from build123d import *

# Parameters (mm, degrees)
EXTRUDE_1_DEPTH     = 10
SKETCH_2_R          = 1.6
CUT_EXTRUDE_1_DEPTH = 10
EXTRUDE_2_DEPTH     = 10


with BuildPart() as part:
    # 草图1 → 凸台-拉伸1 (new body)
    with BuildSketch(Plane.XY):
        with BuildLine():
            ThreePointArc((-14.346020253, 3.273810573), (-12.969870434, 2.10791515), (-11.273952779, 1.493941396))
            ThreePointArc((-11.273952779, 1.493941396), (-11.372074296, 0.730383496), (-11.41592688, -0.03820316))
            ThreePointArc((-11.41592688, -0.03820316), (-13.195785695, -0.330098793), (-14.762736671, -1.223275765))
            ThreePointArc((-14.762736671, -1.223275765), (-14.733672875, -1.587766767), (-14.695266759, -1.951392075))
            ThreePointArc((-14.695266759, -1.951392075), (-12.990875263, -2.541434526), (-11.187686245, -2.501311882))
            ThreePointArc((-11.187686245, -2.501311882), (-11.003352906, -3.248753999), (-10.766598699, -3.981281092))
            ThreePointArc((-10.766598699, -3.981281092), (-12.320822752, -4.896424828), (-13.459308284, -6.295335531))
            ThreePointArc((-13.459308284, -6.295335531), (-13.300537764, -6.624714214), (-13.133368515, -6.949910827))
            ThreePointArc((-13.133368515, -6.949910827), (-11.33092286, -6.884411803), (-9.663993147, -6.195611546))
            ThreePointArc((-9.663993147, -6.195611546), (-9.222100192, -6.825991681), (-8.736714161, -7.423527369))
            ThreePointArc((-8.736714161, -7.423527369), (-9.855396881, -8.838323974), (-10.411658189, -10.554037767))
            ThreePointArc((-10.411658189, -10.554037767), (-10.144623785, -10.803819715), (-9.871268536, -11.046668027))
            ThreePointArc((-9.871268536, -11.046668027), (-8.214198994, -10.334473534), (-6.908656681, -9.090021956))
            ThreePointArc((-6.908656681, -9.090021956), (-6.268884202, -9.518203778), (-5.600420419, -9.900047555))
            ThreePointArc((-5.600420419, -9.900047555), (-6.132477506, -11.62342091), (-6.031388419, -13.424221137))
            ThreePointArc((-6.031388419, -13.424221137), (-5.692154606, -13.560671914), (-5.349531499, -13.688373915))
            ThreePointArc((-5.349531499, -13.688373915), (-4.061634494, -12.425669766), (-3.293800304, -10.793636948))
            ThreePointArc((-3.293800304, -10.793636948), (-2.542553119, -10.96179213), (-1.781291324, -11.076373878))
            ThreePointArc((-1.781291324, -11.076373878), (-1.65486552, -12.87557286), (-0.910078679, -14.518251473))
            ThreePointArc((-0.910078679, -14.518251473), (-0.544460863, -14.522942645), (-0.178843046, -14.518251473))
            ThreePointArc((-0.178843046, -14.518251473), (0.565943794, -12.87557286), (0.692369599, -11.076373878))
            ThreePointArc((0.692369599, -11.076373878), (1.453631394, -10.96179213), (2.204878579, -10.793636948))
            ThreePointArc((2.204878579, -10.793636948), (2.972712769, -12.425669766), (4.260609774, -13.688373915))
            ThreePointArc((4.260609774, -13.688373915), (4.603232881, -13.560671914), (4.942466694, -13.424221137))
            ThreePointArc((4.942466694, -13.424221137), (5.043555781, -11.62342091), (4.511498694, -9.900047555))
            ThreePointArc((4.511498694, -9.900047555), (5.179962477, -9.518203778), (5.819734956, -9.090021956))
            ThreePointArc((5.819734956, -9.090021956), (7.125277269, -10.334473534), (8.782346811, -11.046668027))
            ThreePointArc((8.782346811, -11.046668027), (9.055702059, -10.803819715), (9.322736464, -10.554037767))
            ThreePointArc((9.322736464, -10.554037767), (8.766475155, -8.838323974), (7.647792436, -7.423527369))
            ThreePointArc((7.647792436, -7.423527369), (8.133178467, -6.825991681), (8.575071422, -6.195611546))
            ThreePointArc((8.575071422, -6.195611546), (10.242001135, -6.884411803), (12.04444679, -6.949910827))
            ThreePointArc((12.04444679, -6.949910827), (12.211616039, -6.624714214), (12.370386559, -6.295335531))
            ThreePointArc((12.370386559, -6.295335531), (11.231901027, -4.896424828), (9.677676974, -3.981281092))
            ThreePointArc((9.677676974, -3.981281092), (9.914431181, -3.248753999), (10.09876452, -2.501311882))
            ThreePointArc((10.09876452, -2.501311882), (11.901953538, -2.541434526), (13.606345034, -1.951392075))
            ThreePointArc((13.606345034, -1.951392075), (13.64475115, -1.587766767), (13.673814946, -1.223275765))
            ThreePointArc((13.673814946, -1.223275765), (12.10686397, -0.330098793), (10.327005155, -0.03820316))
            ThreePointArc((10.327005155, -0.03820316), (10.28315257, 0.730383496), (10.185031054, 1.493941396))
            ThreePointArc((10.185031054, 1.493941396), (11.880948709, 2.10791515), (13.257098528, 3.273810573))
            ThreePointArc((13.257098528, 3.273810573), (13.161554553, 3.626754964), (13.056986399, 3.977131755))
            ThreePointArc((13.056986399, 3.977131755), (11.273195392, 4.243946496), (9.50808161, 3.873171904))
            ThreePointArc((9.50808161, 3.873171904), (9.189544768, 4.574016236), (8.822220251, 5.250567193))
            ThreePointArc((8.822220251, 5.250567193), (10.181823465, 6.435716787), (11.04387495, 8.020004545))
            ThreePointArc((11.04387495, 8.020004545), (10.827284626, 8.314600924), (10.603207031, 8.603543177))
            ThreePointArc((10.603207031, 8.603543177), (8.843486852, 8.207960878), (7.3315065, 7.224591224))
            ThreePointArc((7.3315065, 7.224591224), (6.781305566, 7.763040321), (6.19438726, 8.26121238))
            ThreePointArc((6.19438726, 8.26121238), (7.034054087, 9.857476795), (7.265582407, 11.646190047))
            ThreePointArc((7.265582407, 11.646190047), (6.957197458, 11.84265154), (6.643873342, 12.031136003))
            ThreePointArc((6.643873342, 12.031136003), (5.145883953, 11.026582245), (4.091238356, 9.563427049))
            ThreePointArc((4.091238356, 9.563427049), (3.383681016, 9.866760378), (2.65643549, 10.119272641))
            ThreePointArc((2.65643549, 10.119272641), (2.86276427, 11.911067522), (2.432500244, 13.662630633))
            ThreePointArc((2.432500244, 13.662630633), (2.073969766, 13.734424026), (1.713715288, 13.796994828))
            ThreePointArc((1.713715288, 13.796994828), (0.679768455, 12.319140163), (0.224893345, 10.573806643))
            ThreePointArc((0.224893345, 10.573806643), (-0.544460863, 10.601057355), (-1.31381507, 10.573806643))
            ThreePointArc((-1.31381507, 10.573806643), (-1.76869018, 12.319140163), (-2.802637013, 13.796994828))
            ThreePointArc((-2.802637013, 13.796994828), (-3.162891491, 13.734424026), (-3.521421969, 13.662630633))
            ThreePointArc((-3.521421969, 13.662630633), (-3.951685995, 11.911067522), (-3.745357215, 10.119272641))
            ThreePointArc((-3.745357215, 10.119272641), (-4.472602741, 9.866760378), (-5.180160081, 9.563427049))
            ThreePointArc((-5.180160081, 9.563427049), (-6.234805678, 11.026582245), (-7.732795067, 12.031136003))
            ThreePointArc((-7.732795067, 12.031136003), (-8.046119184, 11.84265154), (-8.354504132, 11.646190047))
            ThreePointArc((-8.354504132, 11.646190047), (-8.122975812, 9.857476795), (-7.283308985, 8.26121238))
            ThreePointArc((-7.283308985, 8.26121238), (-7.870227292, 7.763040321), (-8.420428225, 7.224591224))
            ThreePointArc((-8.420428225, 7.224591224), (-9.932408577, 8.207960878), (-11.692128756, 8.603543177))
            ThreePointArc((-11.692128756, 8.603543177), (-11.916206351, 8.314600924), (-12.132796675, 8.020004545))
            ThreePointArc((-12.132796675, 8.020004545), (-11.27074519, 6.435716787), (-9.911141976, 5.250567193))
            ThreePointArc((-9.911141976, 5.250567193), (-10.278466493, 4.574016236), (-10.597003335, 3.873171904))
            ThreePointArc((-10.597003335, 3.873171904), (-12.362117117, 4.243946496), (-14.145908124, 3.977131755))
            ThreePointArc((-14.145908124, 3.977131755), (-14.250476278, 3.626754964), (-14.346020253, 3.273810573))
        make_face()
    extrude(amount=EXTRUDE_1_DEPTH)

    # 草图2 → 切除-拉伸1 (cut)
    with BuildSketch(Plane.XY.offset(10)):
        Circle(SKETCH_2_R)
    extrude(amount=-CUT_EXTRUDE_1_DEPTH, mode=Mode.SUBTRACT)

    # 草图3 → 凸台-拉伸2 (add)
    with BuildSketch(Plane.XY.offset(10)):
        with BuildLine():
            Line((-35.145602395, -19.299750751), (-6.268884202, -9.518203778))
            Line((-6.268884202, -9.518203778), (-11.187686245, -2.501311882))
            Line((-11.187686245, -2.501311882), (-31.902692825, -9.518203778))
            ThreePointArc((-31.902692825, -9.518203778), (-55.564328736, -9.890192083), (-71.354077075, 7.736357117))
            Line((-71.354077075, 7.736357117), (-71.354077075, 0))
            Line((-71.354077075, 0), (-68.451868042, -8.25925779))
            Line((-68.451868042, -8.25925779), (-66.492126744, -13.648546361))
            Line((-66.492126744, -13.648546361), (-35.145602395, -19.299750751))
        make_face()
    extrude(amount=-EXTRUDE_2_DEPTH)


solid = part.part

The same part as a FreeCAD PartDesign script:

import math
import FreeCAD as App
import Part
import Sketcher
from FreeCAD import Vector

doc = App.newDocument("Part")
body = doc.addObject("PartDesign::Body", "Body")

sketch1 = body.newObject("Sketcher::SketchObject", "Sketch")
sketch1.AttachmentSupport = (doc.getObject("XY_Plane"), [""])
sketch1.MapMode = "FlatFace"
sketch1.addGeometry([
    Part.ArcOfCircle(Part.Circle(Vector(-10.4, 6.5, 0), Vector(0, 0, 1), 5.1), math.radians(-140), math.radians(-100)),
    Part.ArcOfCircle(Part.Circle(Vector(-0.5, -0.3, 0), Vector(0, 0, 1), 10.9), math.radians(170.65), math.radians(178.76)),
    Part.ArcOfCircle(Part.Circle(Vector(-11.5, -5.1, 0), Vector(0, 0, 1), 5.1), math.radians(89), math.radians(130)),
    Part.ArcOfCircle(Part.Circle(Vector(-0.5, -0.3, 0), Vector(0, 0, 1), 14.3), math.radians(-176.18), math.radians(-173.24)),
    Part.ArcOfCircle(Part.Circle(Vector(-12.2, 2.5, 0), Vector(0, 0, 1), 5.1), math.radians(-119), math.radians(-79)),
    Part.ArcOfCircle(Part.Circle(Vector(-0.5, -0.3, 0), Vector(0, 0, 1), 10.9), math.radians(-168.17), math.radians(-160.06)),
    Part.ArcOfCircle(Part.Circle(Vector(-9, -8.8, 0), Vector(0, 0, 1), 5.1), math.radians(110), math.radians(151)),
    Part.ArcOfCircle(Part.Circle(Vector(-0.5, -0.3, 0), Vector(0, 0, 1), 14.3), math.radians(-155), math.radians(-152.06)),
    Part.ArcOfCircle(Part.Circle(Vector(-12.4, -1.9, 0), Vector(0, 0, 1), 5.1), math.radians(-98), math.radians(-57)),
    Part.ArcOfCircle(Part.Circle(Vector(-0.5, -0.3, 0), Vector(0, 0, 1), 10.9), math.radians(-147), math.radians(-138.88)),
    Part.ArcOfCircle(Part.Circle(Vector(-5.4, -11.2, 0), Vector(0, 0, 1), 5.1), math.radians(131), math.radians(172)),
    Part.ArcOfCircle(Part.Circle(Vector(-0.5, -0.3, 0), Vector(0, 0, 1), 14.2), math.radians(-133.82), math.radians(-130.88)),
    Part.ArcOfCircle(Part.Circle(Vector(-11, -6.1, 0), Vector(0, 0, 1), 5.1), math.radians(-77), math.radians(-36)),
    Part.ArcOfCircle(Part.Circle(Vector(-0.5, -0.3, 0), Vector(0, 0, 1), 10.9), math.radians(-125.82), math.radians(-117.71)),
    Part.ArcOfCircle(Part.Circle(Vector(-1.1, -12.2, 0), Vector(0, 0, 1), 5.1), math.radians(153), math.radians(193)),
    Part.ArcOfCircle(Part.Circle(Vector(-0.5, -0.3, 0), Vector(0, 0, 1), 14.2), math.radians(-112.65), math.radians(-109.71)),
    Part.ArcOfCircle(Part.Circle(Vector(-8.2, -9.5, 0), Vector(0, 0, 1), 5.1), math.radians(-56), math.radians(-15)),
    Part.ArcOfCircle(Part.Circle(Vector(-0.5, -0.3, 0), Vector(0, 0, 1), 10.9), math.radians(-104.65), math.radians(-96.53)),
    Part.ArcOfCircle(Part.Circle(Vector(3.3, -11.6, 0), Vector(0, 0, 1), 5.1), math.radians(174), math.radians(215)),
    Part.ArcOfCircle(Part.Circle(Vector(-0.5, -0.3, 0), Vector(0, 0, 1), 14.2), math.radians(-91.47), math.radians(-88.53)),
    Part.ArcOfCircle(Part.Circle(Vector(-4.4, -11.6, 0), Vector(0, 0, 1), 5.1), math.radians(-35), math.radians(6)),
    Part.ArcOfCircle(Part.Circle(Vector(-0.5, -0.3, 0), Vector(0, 0, 1), 10.9), math.radians(-83.47), math.radians(-75.35)),
    Part.ArcOfCircle(Part.Circle(Vector(7.1, -9.5, 0), Vector(0, 0, 1), 5.1), math.radians(-165), math.radians(-124)),
    Part.ArcOfCircle(Part.Circle(Vector(-0.5, -0.3, 0), Vector(0, 0, 1), 14.2), math.radians(-70.29), math.radians(-67.35)),
    Part.ArcOfCircle(Part.Circle(Vector(0, -12.2, 0), Vector(0, 0, 1), 5.1), math.radians(-13), math.radians(27)),
    Part.ArcOfCircle(Part.Circle(Vector(-0.5, -0.3, 0), Vector(0, 0, 1), 10.9), math.radians(-62.29), math.radians(-54.18)),
    Part.ArcOfCircle(Part.Circle(Vector(9.9, -6.1, 0), Vector(0, 0, 1), 5.1), math.radians(-144), math.radians(-103)),
    Part.ArcOfCircle(Part.Circle(Vector(-0.5, -0.3, 0), Vector(0, 0, 1), 14.3), math.radians(-49.12), math.radians(-46.18)),
    Part.ArcOfCircle(Part.Circle(Vector(4.3, -11.2, 0), Vector(0, 0, 1), 5.1), math.radians(8), math.radians(49)),
    Part.ArcOfCircle(Part.Circle(Vector(-0.5, -0.3, 0), Vector(0, 0, 1), 10.9), math.radians(-41.12), math.radians(-33)),
    Part.ArcOfCircle(Part.Circle(Vector(11.3, -1.9, 0), Vector(0, 0, 1), 5.1), math.radians(-123), math.radians(-82)),
    Part.ArcOfCircle(Part.Circle(Vector(-0.5, -0.3, 0), Vector(0, 0, 1), 14.3), math.radians(-27.94), math.radians(-25)),
    Part.ArcOfCircle(Part.Circle(Vector(7.9, -8.8, 0), Vector(0, 0, 1), 5.1), math.radians(29), math.radians(70)),
    Part.ArcOfCircle(Part.Circle(Vector(-0.5, -0.3, 0), Vector(0, 0, 1), 10.9), math.radians(-19.94), math.radians(-11.83)),
    Part.ArcOfCircle(Part.Circle(Vector(11.1, 2.5, 0), Vector(0, 0, 1), 5.1), math.radians(-101), math.radians(-61)),
    Part.ArcOfCircle(Part.Circle(Vector(-0.5, -0.3, 0), Vector(0, 0, 1), 14.3), math.radians(-6.76), math.radians(-3.82)),
    Part.ArcOfCircle(Part.Circle(Vector(10.4, -5.1, 0), Vector(0, 0, 1), 5.1), math.radians(50), math.radians(91)),
    Part.ArcOfCircle(Part.Circle(Vector(-0.5, -0.3, 0), Vector(0, 0, 1), 10.9), math.radians(1.24), math.radians(9.35)),
    Part.ArcOfCircle(Part.Circle(Vector(9.3, 6.5, 0), Vector(0, 0, 1), 5.1), math.radians(-80), math.radians(-40)),
    Part.ArcOfCircle(Part.Circle(Vector(-0.5, -0.3, 0), Vector(0, 0, 1), 14.2), math.radians(14.41), math.radians(17.35)),
    Part.ArcOfCircle(Part.Circle(Vector(11.4, -0.9, 0), Vector(0, 0, 1), 5.1), math.radians(71), math.radians(112)),
    Part.ArcOfCircle(Part.Circle(Vector(-0.5, -0.3, 0), Vector(0, 0, 1), 10.9), math.radians(22.41), math.radians(30.53)),
    Part.ArcOfCircle(Part.Circle(Vector(6.2, 9.6, 0), Vector(0, 0, 1), 5.1), math.radians(-59), math.radians(-18)),
    Part.ArcOfCircle(Part.Circle(Vector(-0.5, -0.3, 0), Vector(0, 0, 1), 14.3), math.radians(35.59), math.radians(38.53)),
    Part.ArcOfCircle(Part.Circle(Vector(10.8, 3.5, 0), Vector(0, 0, 1), 5.1), math.radians(92), math.radians(133)),
    Part.ArcOfCircle(Part.Circle(Vector(-0.5, -0.3, 0), Vector(0, 0, 1), 10.9), math.radians(43.59), math.radians(51.7)),
    Part.ArcOfCircle(Part.Circle(Vector(2.2, 11.4, 0), Vector(0, 0, 1), 5.1), math.radians(-38), math.radians(3)),
    Part.ArcOfCircle(Part.Circle(Vector(-0.5, -0.3, 0), Vector(0, 0, 1), 14.2), math.radians(56.77), math.radians(59.71)),
    Part.ArcOfCircle(Part.Circle(Vector(8.7, 7.4, 0), Vector(0, 0, 1), 5.1), math.radians(114), math.radians(154)),
    Part.ArcOfCircle(Part.Circle(Vector(-0.5, -0.3, 0), Vector(0, 0, 1), 10.9), math.radians(64.77), math.radians(72.88)),
    Part.ArcOfCircle(Part.Circle(Vector(-2.2, 11.6, 0), Vector(0, 0, 1), 5.1), math.radians(-17), math.radians(24)),
    Part.ArcOfCircle(Part.Circle(Vector(-0.5, -0.3, 0), Vector(0, 0, 1), 14.3), math.radians(77.94), math.radians(80.88)),
    Part.ArcOfCircle(Part.Circle(Vector(5.3, 10.2, 0), Vector(0, 0, 1), 5.1), math.radians(135), math.radians(176)),
    Part.ArcOfCircle(Part.Circle(Vector(-0.5, -0.3, 0), Vector(0, 0, 1), 10.9), math.radians(85.94), math.radians(94.06)),
    Part.ArcOfCircle(Part.Circle(Vector(-6.4, 10.2, 0), Vector(0, 0, 1), 5.1), math.radians(4), math.radians(45)),
    Part.ArcOfCircle(Part.Circle(Vector(-0.5, -0.3, 0), Vector(0, 0, 1), 14.3), math.radians(99.12), math.radians(102.06)),
    Part.ArcOfCircle(Part.Circle(Vector(1.1, 11.6, 0), Vector(0, 0, 1), 5.1), math.radians(156), math.radians(197)),
    Part.ArcOfCircle(Part.Circle(Vector(-0.5, -0.3, 0), Vector(0, 0, 1), 10.9), math.radians(107.12), math.radians(115.23)),
    Part.ArcOfCircle(Part.Circle(Vector(-9.8, 7.4, 0), Vector(0, 0, 1), 5.1), math.radians(26), math.radians(66)),
    Part.ArcOfCircle(Part.Circle(Vector(-0.5, -0.3, 0), Vector(0, 0, 1), 14.2), math.radians(120.29), math.radians(123.23)),
    Part.ArcOfCircle(Part.Circle(Vector(-3.3, 11.4, 0), Vector(0, 0, 1), 5.1), math.radians(177), math.radians(218)),
    Part.ArcOfCircle(Part.Circle(Vector(-0.5, -0.3, 0), Vector(0, 0, 1), 10.9), math.radians(128.3), math.radians(136.41)),
    Part.ArcOfCircle(Part.Circle(Vector(-11.9, 3.5, 0), Vector(0, 0, 1), 5.1), math.radians(47), math.radians(88)),
    Part.ArcOfCircle(Part.Circle(Vector(-0.5, -0.3, 0), Vector(0, 0, 1), 14.3), math.radians(141.47), math.radians(144.41)),
    Part.ArcOfCircle(Part.Circle(Vector(-7.3, 9.6, 0), Vector(0, 0, 1), 5.1), math.radians(-162), math.radians(-121)),
    Part.ArcOfCircle(Part.Circle(Vector(-0.5, -0.3, 0), Vector(0, 0, 1), 10.9), math.radians(149.47), math.radians(157.59)),
    Part.ArcOfCircle(Part.Circle(Vector(-12.5, -0.9, 0), Vector(0, 0, 1), 5.1), math.radians(68), math.radians(109)),
    Part.ArcOfCircle(Part.Circle(Vector(-0.5, -0.3, 0), Vector(0, 0, 1), 14.2), math.radians(162.65), math.radians(165.59)),
], False)
sketch1.addConstraint([
    Sketcher.Constraint("Coincident", 0, 2, 1, 1),
    Sketcher.Constraint("Coincident", 1, 2, 2, 1),
    Sketcher.Constraint("Coincident", 2, 2, 3, 1),
    Sketcher.Constraint("Coincident", 3, 2, 4, 1),
    Sketcher.Constraint("Coincident", 4, 2, 5, 1),
    Sketcher.Constraint("Coincident", 5, 2, 6, 1),
    Sketcher.Constraint("Coincident", 6, 2, 7, 1),
    Sketcher.Constraint("Coincident", 7, 2, 8, 1),
    Sketcher.Constraint("Coincident", 8, 2, 9, 1),
    Sketcher.Constraint("Coincident", 9, 2, 10, 1),
    Sketcher.Constraint("Coincident", 10, 2, 11, 1),
    Sketcher.Constraint("Coincident", 11, 2, 12, 1),
    Sketcher.Constraint("Coincident", 12, 2, 13, 1),
    Sketcher.Constraint("Coincident", 13, 2, 14, 1),
    Sketcher.Constraint("Coincident", 14, 2, 15, 1),
    Sketcher.Constraint("Coincident", 15, 2, 16, 1),
    Sketcher.Constraint("Coincident", 16, 2, 17, 1),
    Sketcher.Constraint("Coincident", 17, 2, 18, 1),
    Sketcher.Constraint("Coincident", 18, 2, 19, 1),
    Sketcher.Constraint("Coincident", 19, 2, 20, 1),
    Sketcher.Constraint("Coincident", 20, 2, 21, 1),
    Sketcher.Constraint("Coincident", 21, 2, 22, 1),
    Sketcher.Constraint("Coincident", 22, 2, 23, 1),
    Sketcher.Constraint("Coincident", 23, 2, 24, 1),
    Sketcher.Constraint("Coincident", 24, 2, 25, 1),
    Sketcher.Constraint("Coincident", 25, 2, 26, 1),
    Sketcher.Constraint("Coincident", 26, 2, 27, 1),
    Sketcher.Constraint("Coincident", 27, 2, 28, 1),
    Sketcher.Constraint("Coincident", 28, 2, 29, 1),
    Sketcher.Constraint("Coincident", 29, 2, 30, 1),
    Sketcher.Constraint("Coincident", 30, 2, 31, 1),
    Sketcher.Constraint("Coincident", 31, 2, 32, 1),
    Sketcher.Constraint("Coincident", 32, 2, 33, 1),
    Sketcher.Constraint("Coincident", 33, 2, 34, 1),
    Sketcher.Constraint("Coincident", 34, 2, 35, 1),
    Sketcher.Constraint("Coincident", 35, 2, 36, 1),
    Sketcher.Constraint("Coincident", 36, 2, 37, 1),
    Sketcher.Constraint("Coincident", 37, 2, 38, 1),
    Sketcher.Constraint("Coincident", 38, 2, 39, 1),
    Sketcher.Constraint("Coincident", 39, 2, 40, 1),
    Sketcher.Constraint("Coincident", 40, 2, 41, 1),
    Sketcher.Constraint("Coincident", 41, 2, 42, 1),
    Sketcher.Constraint("Coincident", 42, 2, 43, 1),
    Sketcher.Constraint("Coincident", 43, 2, 44, 1),
    Sketcher.Constraint("Coincident", 44, 2, 45, 1),
    Sketcher.Constraint("Coincident", 45, 2, 46, 1),
    Sketcher.Constraint("Coincident", 46, 2, 47, 1),
    Sketcher.Constraint("Coincident", 47, 2, 48, 1),
    Sketcher.Constraint("Coincident", 48, 2, 49, 1),
    Sketcher.Constraint("Coincident", 49, 2, 50, 1),
    Sketcher.Constraint("Coincident", 50, 2, 51, 1),
    Sketcher.Constraint("Coincident", 51, 2, 52, 1),
    Sketcher.Constraint("Coincident", 52, 2, 53, 1),
    Sketcher.Constraint("Coincident", 53, 2, 54, 1),
    Sketcher.Constraint("Coincident", 54, 2, 55, 1),
    Sketcher.Constraint("Coincident", 55, 2, 56, 1),
    Sketcher.Constraint("Coincident", 56, 2, 57, 1),
    Sketcher.Constraint("Coincident", 57, 2, 58, 1),
    Sketcher.Constraint("Coincident", 58, 2, 59, 1),
    Sketcher.Constraint("Coincident", 59, 2, 60, 1),
    Sketcher.Constraint("Coincident", 60, 2, 61, 1),
    Sketcher.Constraint("Coincident", 61, 2, 62, 1),
    Sketcher.Constraint("Coincident", 62, 2, 63, 1),
    Sketcher.Constraint("Coincident", 63, 2, 64, 1),
    Sketcher.Constraint("Coincident", 64, 2, 65, 1),
    Sketcher.Constraint("Coincident", 65, 2, 66, 1),
    Sketcher.Constraint("Coincident", 66, 2, 67, 1),
    Sketcher.Constraint("Coincident", 67, 2, 0, 1),
    Sketcher.Constraint("Coincident", 3, 3, 1, 3),
    Sketcher.Constraint("Coincident", 5, 3, 1, 3),
    Sketcher.Constraint("Coincident", 7, 3, 1, 3),
    Sketcher.Constraint("Coincident", 9, 3, 1, 3),
    Sketcher.Constraint("Coincident", 11, 3, 1, 3),
    Sketcher.Constraint("Coincident", 13, 3, 1, 3),
    Sketcher.Constraint("Coincident", 15, 3, 1, 3),
    Sketcher.Constraint("Coincident", 17, 3, 1, 3),
    Sketcher.Constraint("Coincident", 19, 3, 1, 3),
    Sketcher.Constraint("Coincident", 21, 3, 1, 3),
    Sketcher.Constraint("Coincident", 23, 3, 1, 3),
    Sketcher.Constraint("Coincident", 25, 3, 1, 3),
    Sketcher.Constraint("Coincident", 27, 3, 1, 3),
    Sketcher.Constraint("Coincident", 29, 3, 1, 3),
    Sketcher.Constraint("Coincident", 31, 3, 1, 3),
    Sketcher.Constraint("Coincident", 33, 3, 1, 3),
    Sketcher.Constraint("Coincident", 35, 3, 1, 3),
    Sketcher.Constraint("Coincident", 37, 3, 1, 3),
    Sketcher.Constraint("Coincident", 39, 3, 1, 3),
    Sketcher.Constraint("Coincident", 41, 3, 1, 3),
    Sketcher.Constraint("Coincident", 43, 3, 1, 3),
    Sketcher.Constraint("Coincident", 45, 3, 1, 3),
    Sketcher.Constraint("Coincident", 47, 3, 1, 3),
    Sketcher.Constraint("Coincident", 49, 3, 1, 3),
    Sketcher.Constraint("Coincident", 51, 3, 1, 3),
    Sketcher.Constraint("Coincident", 53, 3, 1, 3),
    Sketcher.Constraint("Coincident", 55, 3, 1, 3),
    Sketcher.Constraint("Coincident", 57, 3, 1, 3),
    Sketcher.Constraint("Coincident", 59, 3, 1, 3),
    Sketcher.Constraint("Coincident", 61, 3, 1, 3),
    Sketcher.Constraint("Coincident", 63, 3, 1, 3),
    Sketcher.Constraint("Coincident", 65, 3, 1, 3),
    Sketcher.Constraint("Coincident", 67, 3, 1, 3),
    Sketcher.Constraint("Equal", 0, 2),
    Sketcher.Constraint("Equal", 2, 4),
    Sketcher.Constraint("Equal", 1, 5),
    Sketcher.Constraint("Equal", 4, 6),
    Sketcher.Constraint("Equal", 3, 7),
    Sketcher.Constraint("Equal", 6, 8),
    Sketcher.Constraint("Equal", 5, 9),
    Sketcher.Constraint("Equal", 8, 10),
    Sketcher.Constraint("Equal", 3, 11),
    Sketcher.Constraint("Equal", 10, 12),
    Sketcher.Constraint("Equal", 9, 13),
    Sketcher.Constraint("Equal", 12, 14),
    Sketcher.Constraint("Equal", 11, 15),
    Sketcher.Constraint("Equal", 14, 16),
    Sketcher.Constraint("Equal", 13, 17),
    Sketcher.Constraint("Equal", 16, 18),
    Sketcher.Constraint("Equal", 15, 19),
    Sketcher.Constraint("Equal", 18, 20),
    Sketcher.Constraint("Equal", 17, 21),
    Sketcher.Constraint("Equal", 20, 22),
    Sketcher.Constraint("Equal", 19, 23),
    Sketcher.Constraint("Equal", 22, 24),
    Sketcher.Constraint("Equal", 21, 25),
    Sketcher.Constraint("Equal", 24, 26),
    Sketcher.Constraint("Equal", 19, 27),
    Sketcher.Constraint("Equal", 26, 28),
    Sketcher.Constraint("Equal", 25, 29),
    Sketcher.Constraint("Equal", 28, 30),
    Sketcher.Constraint("Equal", 27, 31),
    Sketcher.Constraint("Equal", 30, 32),
    Sketcher.Constraint("Equal", 29, 33),
    Sketcher.Constraint("Equal", 32, 34),
    Sketcher.Constraint("Equal", 31, 35),
    Sketcher.Constraint("Equal", 34, 36),
    Sketcher.Constraint("Equal", 33, 37),
    Sketcher.Constraint("Equal", 36, 38),
    Sketcher.Constraint("Equal", 35, 39),
    Sketcher.Constraint("Equal", 38, 40),
    Sketcher.Constraint("Equal", 37, 41),
    Sketcher.Constraint("Equal", 40, 42),
    Sketcher.Constraint("Equal", 39, 43),
    Sketcher.Constraint("Equal", 42, 44),
    Sketcher.Constraint("Equal", 41, 45),
    Sketcher.Constraint("Equal", 44, 46),
    Sketcher.Constraint("Equal", 43, 47),
    Sketcher.Constraint("Equal", 46, 48),
    Sketcher.Constraint("Equal", 45, 49),
    Sketcher.Constraint("Equal", 48, 50),
    Sketcher.Constraint("Equal", 47, 51),
    Sketcher.Constraint("Equal", 50, 52),
    Sketcher.Constraint("Equal", 49, 53),
    Sketcher.Constraint("Equal", 52, 54),
    Sketcher.Constraint("Equal", 51, 55),
    Sketcher.Constraint("Equal", 54, 56),
    Sketcher.Constraint("Equal", 53, 57),
    Sketcher.Constraint("Equal", 56, 58),
    Sketcher.Constraint("Equal", 47, 59),
    Sketcher.Constraint("Equal", 58, 60),
    Sketcher.Constraint("Equal", 57, 61),
    Sketcher.Constraint("Equal", 60, 62),
    Sketcher.Constraint("Equal", 55, 63),
    Sketcher.Constraint("Equal", 62, 64),
    Sketcher.Constraint("Equal", 61, 65),
    Sketcher.Constraint("Equal", 64, 66),
    Sketcher.Constraint("Equal", 63, 67),
    Sketcher.Constraint("Horizontal", 18, 3, 20, 3),
    Sketcher.Constraint("Horizontal", 16, 3, 22, 3),
    Sketcher.Constraint("Horizontal", 14, 3, 24, 3),
    Sketcher.Constraint("Horizontal", 12, 3, 26, 3),
    Sketcher.Constraint("Horizontal", 10, 3, 28, 3),
    Sketcher.Constraint("Horizontal", 8, 3, 30, 3),
    Sketcher.Constraint("Horizontal", 6, 3, 32, 3),
    Sketcher.Constraint("Horizontal", 4, 3, 34, 3),
    Sketcher.Constraint("Horizontal", 2, 3, 36, 3),
    Sketcher.Constraint("Horizontal", 0, 3, 38, 3),
    Sketcher.Constraint("Horizontal", 52, 3, 54, 3),
    Sketcher.Constraint("Horizontal", 50, 3, 56, 3),
    Sketcher.Constraint("Horizontal", 48, 3, 58, 3),
    Sketcher.Constraint("Horizontal", 46, 3, 60, 3),
    Sketcher.Constraint("Horizontal", 44, 3, 62, 3),
    Sketcher.Constraint("Horizontal", 42, 3, 64, 3),
    Sketcher.Constraint("Horizontal", 40, 3, 66, 3),
    Sketcher.Constraint("Horizontal", 18, 2, 19, 2),
    Sketcher.Constraint("Horizontal", 16, 2, 21, 2),
    Sketcher.Constraint("Horizontal", 14, 2, 23, 2),
    Sketcher.Constraint("Horizontal", 12, 2, 25, 2),
    Sketcher.Constraint("Horizontal", 10, 2, 27, 2),
    Sketcher.Constraint("Horizontal", 8, 2, 29, 2),
    Sketcher.Constraint("Horizontal", 6, 2, 31, 2),
    Sketcher.Constraint("Horizontal", 4, 2, 33, 2),
    Sketcher.Constraint("Horizontal", 2, 2, 35, 2),
    Sketcher.Constraint("Horizontal", 0, 2, 37, 2),
    Sketcher.Constraint("Horizontal", 52, 2, 53, 2),
    Sketcher.Constraint("Horizontal", 50, 2, 55, 2),
    Sketcher.Constraint("Horizontal", 48, 2, 57, 2),
    Sketcher.Constraint("Horizontal", 46, 2, 59, 2),
    Sketcher.Constraint("Horizontal", 44, 2, 61, 2),
    Sketcher.Constraint("Horizontal", 42, 2, 63, 2),
    Sketcher.Constraint("Horizontal", 40, 2, 65, 2),
    Sketcher.Constraint("Radius", 0, 5.1),
    Sketcher.Constraint("Radius", 3, 14.25),
    Sketcher.Constraint("Radius", 1, 10.874),
    Sketcher.Constraint("DistanceX", 62, 3, -1, 1, 11.9132),
    Sketcher.Constraint("DistanceX", 5, 2, -1, 1, 10.766599),
    Sketcher.Constraint("DistanceX", 16, 2, -1, 1, 3.2938),
    Sketcher.Constraint("DistanceX", -1, 1, 24, 2, 4.511499),
    Sketcher.Constraint("DistanceX", -1, 1, 38, 2, 13.257099),
    Sketcher.Constraint("DistanceX", -1, 1, 50, 2, 2.4325),
    Sketcher.Constraint("DistanceX", 1, 3, -1, 1, 0.544461),
    Sketcher.Constraint("DistanceX", 2, 3, -1, 1, 11.493492),
    Sketcher.Constraint("DistanceY", -1, 1, 4, 3, 2.497019),
    Sketcher.Constraint("DistanceY", 6, 3, -1, 1, 8.764359),
    Sketcher.Constraint("DistanceY", 8, 3, -1, 1, 1.900838),
    Sketcher.Constraint("DistanceY", 12, 3, -1, 1, 6.078839),
    Sketcher.Constraint("DistanceX", 14, 3, -1, 1, 1.070189),
    Sketcher.Constraint("DistanceX", 16, 3, -1, 1, 8.21977),
    Sketcher.Constraint("DistanceY", 16, 3, -1, 1, 9.472721),
    Sketcher.Constraint("DistanceX", -1, 1, 18, 3, 3.289209),
    Sketcher.Constraint("DistanceX", -1, 1, 30, 3, 11.325512),
    Sketcher.Constraint("DistanceX", -1, 1, 38, 3, 9.324261),
    Sketcher.Constraint("DistanceX", -1, 1, 40, 3, 11.422528),
    Sketcher.Constraint("DistanceY", -1, 1, 46, 3, 11.396192),
    Sketcher.Constraint("DistanceX", 50, 3, -1, 1, 2.227081),
    Sketcher.Constraint("DistanceX", 54, 3, -1, 1, 6.398629),
    Sketcher.Constraint("DistanceX", 58, 3, -1, 1, 9.779539),
    Sketcher.Constraint("DistanceY", 4, 2, -1, 1, 2.501312),
    Sketcher.Constraint("DistanceX", 10, 2, -1, 1, 10.411658),
    Sketcher.Constraint("DistanceX", 11, 2, -1, 1, 9.871269),
    Sketcher.Constraint("DistanceX", 17, 2, -1, 1, 1.781291),
    Sketcher.Constraint("DistanceY", -1, 1, 39, 2, 3.977132),
    Sketcher.Constraint("DistanceX", -1, 1, 41, 2, 8.82222),
    Sketcher.Constraint("DistanceY", -1, 1, 44, 2, 7.224591),
    Sketcher.Constraint("DistanceY", -1, 1, 46, 2, 11.64619),
    Sketcher.Constraint("DistanceX", -1, 1, 48, 2, 4.091238),
    Sketcher.Constraint("DistanceY", 2, 3, -1, 1, 5.137613),
    Sketcher.Constraint("DistanceX", 10, 3, -1, 1, 5.358585),
    Sketcher.Constraint("DistanceX", -1, 1, 42, 3, 6.203674),
    Sketcher.Constraint("DistanceY", -1, 1, 52, 3, 10.180527),
])
pad1 = body.newObject("PartDesign::Pad", "Pad")
pad1.Profile = sketch1
pad1.Length = 10

sketch2 = body.newObject("Sketcher::SketchObject", "Sketch001")
sketch2.AttachmentSupport = (doc.getObject("XY_Plane"), [""])
sketch2.MapMode = "FlatFace"
sketch2.AttachmentOffset = App.Placement(Vector(0, 0, 10), App.Rotation())
sketch2.addGeometry(Part.Circle(Vector(0, 0, 0), Vector(0, 0, 1), 1.6), False)
sketch2.addConstraint([
    Sketcher.Constraint("Coincident", 0, 3, -1, 1),
    Sketcher.Constraint("Diameter", 0, 3.2),
])
pocket1 = body.newObject("PartDesign::Pocket", "Pocket")
pocket1.Profile = sketch2
pocket1.Length = 10

sketch3 = body.newObject("Sketcher::SketchObject", "Sketch002")
sketch3.AttachmentSupport = (doc.getObject("XY_Plane"), [""])
sketch3.MapMode = "FlatFace"
sketch3.AttachmentOffset = App.Placement(Vector(0, 0, 10), App.Rotation())
sketch3.addGeometry([
    Part.LineSegment(Vector(-35, -19, 0), Vector(-6, -10, 0)),
    Part.LineSegment(Vector(-6, -10, 0), Vector(-11, -3, 0)),
    Part.LineSegment(Vector(-11, -3, 0), Vector(-32, -10, 0)),
    Part.ArcOfCircle(Part.Circle(Vector(-44, 16, 0), Vector(0, 0, 1), 29), math.radians(-163), math.radians(-65)),
    Part.LineSegment(Vector(-71, 8, 0), Vector(-71, 0, 0)),
    Part.LineSegment(Vector(-71, 0, 0), Vector(-68, -8, 0)),
    Part.LineSegment(Vector(-68, -8, 0), Vector(-66, -14, 0)),
    Part.LineSegment(Vector(-66, -14, 0), Vector(-35, -19, 0)),
], False)
sketch3.addConstraint([
    Sketcher.Constraint("Coincident", 0, 2, 1, 1),
    Sketcher.Constraint("Coincident", 1, 2, 2, 1),
    Sketcher.Constraint("Coincident", 2, 2, 3, 2),
    Sketcher.Constraint("Coincident", 3, 1, 4, 1),
    Sketcher.Constraint("Coincident", 4, 2, 5, 1),
    Sketcher.Constraint("Coincident", 5, 2, 6, 1),
    Sketcher.Constraint("Coincident", 6, 2, 7, 1),
    Sketcher.Constraint("Coincident", 7, 2, 0, 1),
    Sketcher.Constraint("Vertical", 4),
    Sketcher.Constraint("PointOnObject", 4, 2, -1),
    Sketcher.Constraint("Parallel", 0, 2),
    Sketcher.Constraint("Horizontal", 0, 2, 2, 2),
    Sketcher.Constraint("Radius", 3, 28.507006),
    Sketcher.Constraint("Distance", 1, 8.569211),
    Sketcher.Constraint("DistanceY", 4, 2, 4, 1, 7.736357),
    Sketcher.Constraint("DistanceY", -1, 1, 3, 3, 16.228028),
    Sketcher.Constraint("DistanceY", 1, 2, -1, 1, 2.501312),
    Sketcher.Constraint("DistanceX", 5, 2, -1, 1, 68.451868),
    Sketcher.Constraint("DistanceY", 7, 2, -1, 1, 19.299751),
    Sketcher.Constraint("DistanceX", 3, 3, 0, 2, 37.872311),
    Sketcher.Constraint("DistanceY", 0, 2, 1, 2, 7.016892),
    Sketcher.Constraint("DistanceX", 4, 2, 5, 2, 2.902209),
    Sketcher.Constraint("DistanceX", 5, 2, 6, 2, 1.959741),
    Sketcher.Constraint("DistanceY", 6, 2, 5, 2, 5.389289),
    Sketcher.Constraint("Distance", 5, 8.754322),
])
pad2 = body.newObject("PartDesign::Pad", "Pad001")
pad2.Profile = sketch3
pad2.Length = 10
pad2.Reversed = True

doc.recompute()
